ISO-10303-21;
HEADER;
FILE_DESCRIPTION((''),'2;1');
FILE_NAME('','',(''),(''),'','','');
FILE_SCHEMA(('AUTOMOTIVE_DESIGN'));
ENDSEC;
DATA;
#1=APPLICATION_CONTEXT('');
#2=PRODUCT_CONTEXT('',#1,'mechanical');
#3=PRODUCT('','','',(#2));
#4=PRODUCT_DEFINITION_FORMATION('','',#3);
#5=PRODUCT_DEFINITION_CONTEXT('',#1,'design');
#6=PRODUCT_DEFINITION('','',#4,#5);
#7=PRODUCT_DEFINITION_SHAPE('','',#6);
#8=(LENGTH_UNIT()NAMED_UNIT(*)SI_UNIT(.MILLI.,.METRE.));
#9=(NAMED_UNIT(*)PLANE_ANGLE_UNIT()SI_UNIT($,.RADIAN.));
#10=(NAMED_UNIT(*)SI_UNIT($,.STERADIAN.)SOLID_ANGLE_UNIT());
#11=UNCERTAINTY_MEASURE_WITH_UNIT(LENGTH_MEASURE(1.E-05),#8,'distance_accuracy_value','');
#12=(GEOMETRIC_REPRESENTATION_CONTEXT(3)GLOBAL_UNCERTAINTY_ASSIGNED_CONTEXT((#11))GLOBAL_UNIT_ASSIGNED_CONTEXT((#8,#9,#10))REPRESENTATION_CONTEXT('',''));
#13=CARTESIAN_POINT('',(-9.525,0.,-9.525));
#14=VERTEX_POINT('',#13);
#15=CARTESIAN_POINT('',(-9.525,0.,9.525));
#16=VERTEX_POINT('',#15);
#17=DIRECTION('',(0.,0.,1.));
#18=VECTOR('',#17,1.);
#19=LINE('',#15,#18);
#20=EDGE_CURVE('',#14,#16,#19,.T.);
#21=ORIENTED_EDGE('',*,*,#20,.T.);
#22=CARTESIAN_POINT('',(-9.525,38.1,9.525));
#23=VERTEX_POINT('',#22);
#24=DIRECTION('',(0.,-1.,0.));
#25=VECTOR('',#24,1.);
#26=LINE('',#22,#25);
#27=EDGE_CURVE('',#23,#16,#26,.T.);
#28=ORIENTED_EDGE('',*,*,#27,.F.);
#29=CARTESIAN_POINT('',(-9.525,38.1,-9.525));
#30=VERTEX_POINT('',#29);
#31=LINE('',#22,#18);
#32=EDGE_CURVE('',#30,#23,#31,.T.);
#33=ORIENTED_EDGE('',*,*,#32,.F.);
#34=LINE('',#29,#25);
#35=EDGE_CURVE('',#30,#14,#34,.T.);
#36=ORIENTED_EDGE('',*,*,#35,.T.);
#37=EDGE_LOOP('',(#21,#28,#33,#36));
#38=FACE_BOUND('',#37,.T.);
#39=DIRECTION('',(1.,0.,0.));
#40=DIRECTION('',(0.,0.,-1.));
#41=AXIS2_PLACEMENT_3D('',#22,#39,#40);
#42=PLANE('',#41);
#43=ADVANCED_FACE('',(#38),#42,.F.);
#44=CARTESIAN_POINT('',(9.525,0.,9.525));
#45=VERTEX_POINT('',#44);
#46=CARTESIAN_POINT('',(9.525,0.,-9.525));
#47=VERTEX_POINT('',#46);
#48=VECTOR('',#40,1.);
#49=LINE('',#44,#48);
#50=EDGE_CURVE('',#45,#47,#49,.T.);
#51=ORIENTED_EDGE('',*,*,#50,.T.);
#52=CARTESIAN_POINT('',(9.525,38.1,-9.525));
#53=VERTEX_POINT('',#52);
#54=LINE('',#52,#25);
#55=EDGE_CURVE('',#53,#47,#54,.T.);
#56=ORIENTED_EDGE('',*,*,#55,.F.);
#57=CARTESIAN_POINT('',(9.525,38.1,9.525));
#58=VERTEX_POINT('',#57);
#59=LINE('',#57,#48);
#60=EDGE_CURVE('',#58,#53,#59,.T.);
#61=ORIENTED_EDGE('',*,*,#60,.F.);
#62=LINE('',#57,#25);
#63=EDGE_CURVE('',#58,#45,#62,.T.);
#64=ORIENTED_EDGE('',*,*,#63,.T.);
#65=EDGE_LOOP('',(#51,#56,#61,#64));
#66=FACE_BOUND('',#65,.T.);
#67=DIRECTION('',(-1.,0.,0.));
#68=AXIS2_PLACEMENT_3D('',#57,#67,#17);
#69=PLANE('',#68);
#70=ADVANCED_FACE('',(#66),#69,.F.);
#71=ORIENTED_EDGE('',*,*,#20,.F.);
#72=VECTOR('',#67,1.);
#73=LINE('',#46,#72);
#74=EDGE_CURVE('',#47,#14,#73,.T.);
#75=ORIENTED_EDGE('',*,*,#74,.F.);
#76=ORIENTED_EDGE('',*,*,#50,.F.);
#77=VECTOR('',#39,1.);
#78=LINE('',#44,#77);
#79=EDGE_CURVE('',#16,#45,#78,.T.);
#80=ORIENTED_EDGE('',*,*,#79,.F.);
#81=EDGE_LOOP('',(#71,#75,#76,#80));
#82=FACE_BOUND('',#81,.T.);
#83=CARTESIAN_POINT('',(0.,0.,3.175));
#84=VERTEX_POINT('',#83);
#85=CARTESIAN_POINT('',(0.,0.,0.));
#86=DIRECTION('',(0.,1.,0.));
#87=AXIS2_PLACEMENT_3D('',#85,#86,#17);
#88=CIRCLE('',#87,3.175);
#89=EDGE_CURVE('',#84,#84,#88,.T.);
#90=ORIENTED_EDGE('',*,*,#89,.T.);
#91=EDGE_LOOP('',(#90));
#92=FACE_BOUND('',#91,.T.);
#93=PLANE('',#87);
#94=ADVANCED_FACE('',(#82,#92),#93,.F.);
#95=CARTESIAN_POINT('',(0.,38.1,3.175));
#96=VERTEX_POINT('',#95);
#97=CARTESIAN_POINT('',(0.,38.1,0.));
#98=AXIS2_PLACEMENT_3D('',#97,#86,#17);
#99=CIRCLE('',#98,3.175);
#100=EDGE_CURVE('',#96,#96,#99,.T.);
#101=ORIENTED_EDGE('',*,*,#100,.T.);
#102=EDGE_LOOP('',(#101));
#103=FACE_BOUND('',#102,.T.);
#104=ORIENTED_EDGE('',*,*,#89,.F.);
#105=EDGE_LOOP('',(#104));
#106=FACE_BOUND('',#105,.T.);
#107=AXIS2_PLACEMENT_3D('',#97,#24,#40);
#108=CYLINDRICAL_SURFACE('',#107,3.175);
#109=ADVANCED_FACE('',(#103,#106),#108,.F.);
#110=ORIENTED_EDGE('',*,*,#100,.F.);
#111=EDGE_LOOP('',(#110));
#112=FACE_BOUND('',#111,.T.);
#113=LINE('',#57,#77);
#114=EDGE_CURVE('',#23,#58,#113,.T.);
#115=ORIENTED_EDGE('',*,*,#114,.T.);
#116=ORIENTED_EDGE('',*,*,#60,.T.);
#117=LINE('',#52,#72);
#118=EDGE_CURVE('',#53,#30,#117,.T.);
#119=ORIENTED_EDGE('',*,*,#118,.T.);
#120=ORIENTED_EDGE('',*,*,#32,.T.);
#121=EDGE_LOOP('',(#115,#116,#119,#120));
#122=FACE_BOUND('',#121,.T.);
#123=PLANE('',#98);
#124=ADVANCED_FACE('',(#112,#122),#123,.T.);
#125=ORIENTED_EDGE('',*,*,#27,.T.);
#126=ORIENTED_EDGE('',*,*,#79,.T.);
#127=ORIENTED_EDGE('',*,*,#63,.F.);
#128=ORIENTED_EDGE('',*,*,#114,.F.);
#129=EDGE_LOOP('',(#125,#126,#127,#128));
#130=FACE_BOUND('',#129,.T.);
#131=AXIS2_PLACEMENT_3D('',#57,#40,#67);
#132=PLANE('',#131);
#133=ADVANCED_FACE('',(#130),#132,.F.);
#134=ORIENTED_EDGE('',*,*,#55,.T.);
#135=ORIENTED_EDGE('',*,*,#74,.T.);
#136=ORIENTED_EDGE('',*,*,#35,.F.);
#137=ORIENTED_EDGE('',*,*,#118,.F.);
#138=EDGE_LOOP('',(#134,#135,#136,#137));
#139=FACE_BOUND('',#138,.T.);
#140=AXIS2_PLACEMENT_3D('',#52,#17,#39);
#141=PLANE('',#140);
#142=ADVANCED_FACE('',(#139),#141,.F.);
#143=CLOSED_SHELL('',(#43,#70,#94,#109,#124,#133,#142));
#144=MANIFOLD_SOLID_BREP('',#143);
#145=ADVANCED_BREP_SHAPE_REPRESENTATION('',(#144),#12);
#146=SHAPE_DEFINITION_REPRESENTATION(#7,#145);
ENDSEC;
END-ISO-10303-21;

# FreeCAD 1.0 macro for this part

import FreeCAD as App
import Part
import Sketcher
Q = App.Units.Quantity

doc = App.newDocument("Part")
params = doc.addObject("Spreadsheet::Sheet", "Params")
for row, (alias, value) in enumerate([
    ("sketch1_diameter", "0.25 in"),
    ("sketch1_width", "0.75 in"),
    ("pad1_length", "1.5 in"),
], start=1):
    params.set(f"A{row}", alias)
    params.set(f"B{row}", "=" + value)
    params.setAlias(f"B{row}", alias)

body = doc.addObject("PartDesign::Body", "Body")

sketch1 = body.newObject("Sketcher::SketchObject", "Sketch")
sketch1.AttachmentSupport = (doc.getObject("XZ_Plane"), [""])
sketch1.MapMode = "FlatFace"
sketch1.addGeometry(Part.LineSegment(App.Vector(-9.5, -9.5, 0), App.Vector(-9.5, 9.5, 0)), False)
sketch1.addGeometry(Part.LineSegment(App.Vector(-9.5, 9.5, 0), App.Vector(9.5, 9.5, 0)), False)
sketch1.addGeometry(Part.LineSegment(App.Vector(9.5, 9.5, 0), App.Vector(9.5, -9.5, 0)), False)
sketch1.addGeometry(Part.LineSegment(App.Vector(9.5, -9.5, 0), App.Vector(-9.5, -9.5, 0)), False)
sketch1.addGeometry(Part.Circle(App.Vector(0, 0, 0), App.Vector(0, 0, 1), 3.2), False)
sketch1.addConstraint(Sketcher.Constraint("Coincident", 0, 2, 1, 1))
sketch1.addConstraint(Sketcher.Constraint("Coincident", 1, 2, 2, 1))
sketch1.addConstraint(Sketcher.Constraint("Coincident", 2, 2, 3, 1))
sketch1.addConstraint(Sketcher.Constraint("Coincident", 3, 2, 0, 1))
sketch1.addConstraint(Sketcher.Constraint("Vertical", 0))
sketch1.addConstraint(Sketcher.Constraint("Horizontal", 1))
sketch1.addConstraint(Sketcher.Constraint("Vertical", 2))
sketch1.addConstraint(Sketcher.Constraint("Horizontal", 3))
sketch1.addConstraint(Sketcher.Constraint("Coincident", 4, 3, -1, 1))
sketch1.addConstraint(Sketcher.Constraint("Symmetric", 0, 2, 2, 2, -1, 1))
sketch1.addConstraint(Sketcher.Constraint("Equal", 3, 0))
sketch1.addConstraint(Sketcher.Constraint("Diameter", 4, Q("0.25 in")))
sketch1.addConstraint(Sketcher.Constraint("DistanceX", 1, 1, 1, 2, Q("0.75 in")))
sketch1.setExpression("Constraints[11]", "Params.sketch1_diameter")
sketch1.setExpression("Constraints[12]", "Params.sketch1_width")
pad1 = body.newObject("PartDesign::Pad", "Pad")
pad1.Profile = sketch1
pad1.setExpression("Length", "Params.pad1_length")
pad1.Reversed = True

doc.recompute()
